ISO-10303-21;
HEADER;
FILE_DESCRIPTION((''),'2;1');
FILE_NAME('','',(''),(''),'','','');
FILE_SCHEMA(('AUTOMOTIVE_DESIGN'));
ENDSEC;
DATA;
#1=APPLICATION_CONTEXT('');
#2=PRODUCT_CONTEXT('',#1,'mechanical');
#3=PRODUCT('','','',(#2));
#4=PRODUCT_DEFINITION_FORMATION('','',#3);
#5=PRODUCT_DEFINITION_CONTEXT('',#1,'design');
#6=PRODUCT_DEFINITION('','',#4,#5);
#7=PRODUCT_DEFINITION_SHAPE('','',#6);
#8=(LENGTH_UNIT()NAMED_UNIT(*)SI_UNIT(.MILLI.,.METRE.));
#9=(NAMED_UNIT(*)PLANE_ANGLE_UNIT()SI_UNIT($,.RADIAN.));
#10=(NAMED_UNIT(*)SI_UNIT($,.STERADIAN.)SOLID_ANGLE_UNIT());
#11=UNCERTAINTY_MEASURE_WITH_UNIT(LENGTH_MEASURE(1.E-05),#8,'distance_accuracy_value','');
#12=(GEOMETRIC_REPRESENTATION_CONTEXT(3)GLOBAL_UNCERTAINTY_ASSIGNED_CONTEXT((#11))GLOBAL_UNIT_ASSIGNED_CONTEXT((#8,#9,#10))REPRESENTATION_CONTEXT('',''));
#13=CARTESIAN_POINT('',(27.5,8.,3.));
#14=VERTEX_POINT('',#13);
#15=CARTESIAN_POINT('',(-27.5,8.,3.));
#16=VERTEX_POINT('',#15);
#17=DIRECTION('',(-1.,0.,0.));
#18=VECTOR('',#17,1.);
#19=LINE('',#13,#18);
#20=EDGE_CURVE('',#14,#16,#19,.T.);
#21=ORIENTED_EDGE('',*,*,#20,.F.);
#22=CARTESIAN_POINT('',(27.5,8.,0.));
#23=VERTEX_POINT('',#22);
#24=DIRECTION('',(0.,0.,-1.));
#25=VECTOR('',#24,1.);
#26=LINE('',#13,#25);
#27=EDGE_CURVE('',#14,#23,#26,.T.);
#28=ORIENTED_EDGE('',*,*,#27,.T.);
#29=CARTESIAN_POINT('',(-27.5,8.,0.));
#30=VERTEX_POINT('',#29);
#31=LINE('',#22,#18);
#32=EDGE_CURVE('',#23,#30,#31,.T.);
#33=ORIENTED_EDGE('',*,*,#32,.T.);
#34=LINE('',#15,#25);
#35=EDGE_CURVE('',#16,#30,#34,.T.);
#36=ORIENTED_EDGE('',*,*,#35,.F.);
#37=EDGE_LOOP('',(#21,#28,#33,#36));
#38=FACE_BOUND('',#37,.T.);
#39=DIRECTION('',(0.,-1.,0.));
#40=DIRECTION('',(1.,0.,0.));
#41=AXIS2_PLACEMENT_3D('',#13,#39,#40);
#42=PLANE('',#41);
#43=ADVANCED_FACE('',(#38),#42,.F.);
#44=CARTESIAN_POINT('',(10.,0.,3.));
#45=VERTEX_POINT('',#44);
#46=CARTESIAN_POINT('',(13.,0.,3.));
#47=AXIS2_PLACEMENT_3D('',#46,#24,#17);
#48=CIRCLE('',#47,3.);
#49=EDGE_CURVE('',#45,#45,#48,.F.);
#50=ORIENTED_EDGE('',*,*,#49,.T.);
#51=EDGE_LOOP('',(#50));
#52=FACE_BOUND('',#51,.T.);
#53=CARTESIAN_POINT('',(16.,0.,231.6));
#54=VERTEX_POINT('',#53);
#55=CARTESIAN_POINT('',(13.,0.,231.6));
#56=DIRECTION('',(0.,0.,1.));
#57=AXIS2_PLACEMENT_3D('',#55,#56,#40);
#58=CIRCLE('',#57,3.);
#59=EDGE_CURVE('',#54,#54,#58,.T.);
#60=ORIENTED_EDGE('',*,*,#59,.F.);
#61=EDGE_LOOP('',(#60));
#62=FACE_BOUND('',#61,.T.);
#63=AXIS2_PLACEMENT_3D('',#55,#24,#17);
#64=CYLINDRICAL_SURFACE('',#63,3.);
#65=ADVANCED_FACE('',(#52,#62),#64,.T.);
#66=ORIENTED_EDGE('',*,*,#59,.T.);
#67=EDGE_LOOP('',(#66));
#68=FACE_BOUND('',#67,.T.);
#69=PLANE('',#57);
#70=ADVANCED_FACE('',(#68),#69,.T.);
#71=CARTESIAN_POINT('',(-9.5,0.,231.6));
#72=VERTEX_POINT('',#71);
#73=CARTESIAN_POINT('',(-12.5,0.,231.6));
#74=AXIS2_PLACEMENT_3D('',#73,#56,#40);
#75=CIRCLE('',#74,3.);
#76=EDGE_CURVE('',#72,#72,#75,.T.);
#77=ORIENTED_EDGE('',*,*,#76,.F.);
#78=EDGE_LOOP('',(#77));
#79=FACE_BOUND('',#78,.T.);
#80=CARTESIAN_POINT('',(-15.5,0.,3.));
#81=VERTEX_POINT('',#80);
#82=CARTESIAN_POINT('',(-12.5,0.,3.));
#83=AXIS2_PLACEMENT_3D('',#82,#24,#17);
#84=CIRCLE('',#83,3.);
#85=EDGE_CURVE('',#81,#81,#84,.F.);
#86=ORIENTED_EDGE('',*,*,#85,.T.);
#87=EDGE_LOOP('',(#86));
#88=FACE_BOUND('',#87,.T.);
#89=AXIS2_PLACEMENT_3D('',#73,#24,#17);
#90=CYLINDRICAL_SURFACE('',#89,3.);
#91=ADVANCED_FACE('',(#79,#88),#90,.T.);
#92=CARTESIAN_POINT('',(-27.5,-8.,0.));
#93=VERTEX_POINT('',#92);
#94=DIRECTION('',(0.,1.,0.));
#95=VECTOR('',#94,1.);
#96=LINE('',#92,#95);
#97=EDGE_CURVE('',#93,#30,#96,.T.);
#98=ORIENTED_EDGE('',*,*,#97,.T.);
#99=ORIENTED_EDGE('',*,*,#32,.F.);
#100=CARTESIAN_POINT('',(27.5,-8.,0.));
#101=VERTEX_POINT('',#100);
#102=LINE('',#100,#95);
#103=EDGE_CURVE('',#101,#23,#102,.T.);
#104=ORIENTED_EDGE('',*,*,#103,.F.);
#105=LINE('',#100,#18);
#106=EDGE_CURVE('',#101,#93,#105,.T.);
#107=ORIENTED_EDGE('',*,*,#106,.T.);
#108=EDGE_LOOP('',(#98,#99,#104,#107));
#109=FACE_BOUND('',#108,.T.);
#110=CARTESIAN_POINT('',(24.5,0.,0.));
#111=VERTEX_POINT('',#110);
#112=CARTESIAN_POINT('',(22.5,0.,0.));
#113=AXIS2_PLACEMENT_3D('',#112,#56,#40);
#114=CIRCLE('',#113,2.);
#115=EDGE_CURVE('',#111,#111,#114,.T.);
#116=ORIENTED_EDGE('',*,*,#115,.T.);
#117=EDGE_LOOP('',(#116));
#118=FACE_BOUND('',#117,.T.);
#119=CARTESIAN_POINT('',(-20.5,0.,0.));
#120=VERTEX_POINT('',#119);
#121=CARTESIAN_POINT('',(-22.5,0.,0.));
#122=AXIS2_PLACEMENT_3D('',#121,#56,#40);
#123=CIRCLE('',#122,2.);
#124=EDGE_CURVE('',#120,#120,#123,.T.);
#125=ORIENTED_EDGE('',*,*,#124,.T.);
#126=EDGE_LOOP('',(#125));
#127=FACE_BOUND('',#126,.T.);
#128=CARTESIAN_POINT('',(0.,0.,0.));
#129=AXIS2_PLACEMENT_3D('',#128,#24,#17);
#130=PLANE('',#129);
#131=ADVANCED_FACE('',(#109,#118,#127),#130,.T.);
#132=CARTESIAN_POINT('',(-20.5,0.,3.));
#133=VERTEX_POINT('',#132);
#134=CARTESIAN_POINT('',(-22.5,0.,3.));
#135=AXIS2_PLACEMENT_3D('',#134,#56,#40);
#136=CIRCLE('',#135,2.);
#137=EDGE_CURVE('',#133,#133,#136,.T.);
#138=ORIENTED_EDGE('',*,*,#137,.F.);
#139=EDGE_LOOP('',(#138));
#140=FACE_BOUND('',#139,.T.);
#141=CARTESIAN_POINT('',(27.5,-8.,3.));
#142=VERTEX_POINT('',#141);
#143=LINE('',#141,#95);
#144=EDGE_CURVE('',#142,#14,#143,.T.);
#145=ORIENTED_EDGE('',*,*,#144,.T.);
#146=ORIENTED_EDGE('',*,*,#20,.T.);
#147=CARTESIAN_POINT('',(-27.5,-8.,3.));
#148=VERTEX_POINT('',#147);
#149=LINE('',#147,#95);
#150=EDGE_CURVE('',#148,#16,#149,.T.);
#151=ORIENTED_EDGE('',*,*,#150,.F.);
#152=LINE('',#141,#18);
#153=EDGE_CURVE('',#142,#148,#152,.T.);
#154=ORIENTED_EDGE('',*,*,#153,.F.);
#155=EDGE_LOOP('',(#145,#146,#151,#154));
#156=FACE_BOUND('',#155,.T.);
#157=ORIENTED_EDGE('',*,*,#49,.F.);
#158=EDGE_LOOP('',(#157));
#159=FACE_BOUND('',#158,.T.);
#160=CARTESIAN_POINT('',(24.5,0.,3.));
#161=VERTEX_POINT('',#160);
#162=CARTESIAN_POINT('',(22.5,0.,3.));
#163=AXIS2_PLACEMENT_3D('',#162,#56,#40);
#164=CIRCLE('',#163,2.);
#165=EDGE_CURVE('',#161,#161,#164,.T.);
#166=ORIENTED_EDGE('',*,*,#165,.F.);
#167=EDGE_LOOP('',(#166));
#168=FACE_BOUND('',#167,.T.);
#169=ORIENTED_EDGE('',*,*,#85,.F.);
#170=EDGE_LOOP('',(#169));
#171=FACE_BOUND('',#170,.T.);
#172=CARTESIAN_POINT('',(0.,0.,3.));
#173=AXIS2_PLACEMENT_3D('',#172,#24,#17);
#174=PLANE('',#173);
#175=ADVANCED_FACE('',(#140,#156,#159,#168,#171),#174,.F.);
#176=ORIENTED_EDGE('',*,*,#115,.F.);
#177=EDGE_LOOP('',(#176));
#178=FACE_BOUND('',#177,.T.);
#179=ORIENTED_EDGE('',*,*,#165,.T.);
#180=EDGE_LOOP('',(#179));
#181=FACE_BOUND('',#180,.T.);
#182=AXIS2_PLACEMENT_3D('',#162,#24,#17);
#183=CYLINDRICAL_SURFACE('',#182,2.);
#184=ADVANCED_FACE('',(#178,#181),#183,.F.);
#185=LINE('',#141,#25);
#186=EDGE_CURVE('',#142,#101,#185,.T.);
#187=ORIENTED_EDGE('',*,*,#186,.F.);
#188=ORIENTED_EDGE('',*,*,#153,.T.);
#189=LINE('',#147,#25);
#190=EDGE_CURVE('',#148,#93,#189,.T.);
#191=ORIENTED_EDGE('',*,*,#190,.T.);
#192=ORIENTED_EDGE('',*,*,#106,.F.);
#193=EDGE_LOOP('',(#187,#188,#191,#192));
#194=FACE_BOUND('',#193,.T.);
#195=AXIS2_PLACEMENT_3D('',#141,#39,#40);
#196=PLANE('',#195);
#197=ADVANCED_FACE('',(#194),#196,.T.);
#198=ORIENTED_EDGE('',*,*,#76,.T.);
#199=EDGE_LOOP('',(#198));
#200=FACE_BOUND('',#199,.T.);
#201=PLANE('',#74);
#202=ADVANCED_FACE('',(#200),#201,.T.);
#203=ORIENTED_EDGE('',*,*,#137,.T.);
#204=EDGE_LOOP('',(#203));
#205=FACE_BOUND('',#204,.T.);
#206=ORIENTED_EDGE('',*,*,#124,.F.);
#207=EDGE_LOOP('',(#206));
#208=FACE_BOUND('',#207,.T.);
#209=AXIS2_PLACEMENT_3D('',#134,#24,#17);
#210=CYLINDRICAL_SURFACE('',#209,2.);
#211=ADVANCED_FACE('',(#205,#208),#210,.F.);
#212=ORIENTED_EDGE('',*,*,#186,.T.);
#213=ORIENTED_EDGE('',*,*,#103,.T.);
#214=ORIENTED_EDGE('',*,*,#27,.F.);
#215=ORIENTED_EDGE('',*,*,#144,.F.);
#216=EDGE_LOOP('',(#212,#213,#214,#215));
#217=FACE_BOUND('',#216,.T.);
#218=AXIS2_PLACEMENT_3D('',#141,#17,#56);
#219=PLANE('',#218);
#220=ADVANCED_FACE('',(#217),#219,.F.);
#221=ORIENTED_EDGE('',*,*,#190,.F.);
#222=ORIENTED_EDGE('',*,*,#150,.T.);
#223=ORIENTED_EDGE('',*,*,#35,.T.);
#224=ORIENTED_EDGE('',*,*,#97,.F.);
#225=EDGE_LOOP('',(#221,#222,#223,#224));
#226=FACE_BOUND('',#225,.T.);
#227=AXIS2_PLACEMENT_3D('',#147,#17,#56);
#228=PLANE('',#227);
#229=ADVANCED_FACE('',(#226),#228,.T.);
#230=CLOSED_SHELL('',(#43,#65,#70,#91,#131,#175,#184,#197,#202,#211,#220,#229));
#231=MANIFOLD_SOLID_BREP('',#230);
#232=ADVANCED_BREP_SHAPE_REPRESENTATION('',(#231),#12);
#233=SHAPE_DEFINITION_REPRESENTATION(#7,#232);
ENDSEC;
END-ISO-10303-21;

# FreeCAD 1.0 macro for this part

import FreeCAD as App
import Part
import Sketcher


def add_polygon(sketch, points):
    """Adds a closed chain of lines whose ends are joined by coincident constraints."""
    first, n = sketch.GeometryCount, len(points)
    for a, b in zip(points, points[1:] + points[:1]):
        sketch.addGeometry(Part.LineSegment(App.Vector(*a, 0), App.Vector(*b, 0)), False)
    for i in range(n):
        sketch.addConstraint(Sketcher.Constraint("Coincident", first + i, 2, first + (i + 1) % n, 1))

doc = App.newDocument("Part")
body = doc.addObject("PartDesign::Body", "Body")

# Sketch on XY plane
sketch1 = doc.addObject("Sketcher::SketchObject", "Sketch")
body.addObject(sketch1)
sketch1.AttachmentSupport = (doc.XY_Plane, [""])
sketch1.MapMode = "FlatFace"
add_polygon(sketch1, [(-27.5, 8), (-27.5, -8), (27.5, -8), (27.5, 8)])  # lines 0-3
sketch1.addGeometry(Part.Circle(App.Vector(-22.5, 0, 0), App.Vector(0, 0, 1), 2), False)  # 4
sketch1.addGeometry(Part.Circle(App.Vector(22.5, 0, 0), App.Vector(0, 0, 1), 2), False)  # 5
sketch1.addConstraint([
    Sketcher.Constraint("Vertical", 0),
    Sketcher.Constraint("Horizontal", 1),
    Sketcher.Constraint("Vertical", 2),
    Sketcher.Constraint("Horizontal", 3),
    Sketcher.Constraint("Equal", 4, 5),
    Sketcher.Constraint("Symmetric", 4, 3, 5, 3, -1, 1),
    Sketcher.Constraint("Symmetric", 0, 2, 2, 2, -1, 1),
    Sketcher.Constraint("PointOnObject", 4, 3, -1),
    Sketcher.Constraint("Diameter", 4, 4.0),
    Sketcher.Constraint("DistanceX", 1, 1, 1, 2, 55.0),
    Sketcher.Constraint("DistanceY", 0, 2, 0, 1, 16.0),
    Sketcher.Constraint("DistanceX", 4, 3, 5, 3, 45.0),
])
pad1 = doc.addObject("PartDesign::Pad", "Pad")
body.addObject(pad1)
pad1.Profile = sketch1
pad1.Length = 3

# Sketch on XY plane
sketch2 = doc.addObject("Sketcher::SketchObject", "Sketch001")
body.addObject(sketch2)
sketch2.AttachmentSupport = (doc.XY_Plane, [""])
sketch2.MapMode = "FlatFace"
sketch2.AttachmentOffset = App.Placement(App.Vector(0, 0, 3), App.Rotation())
sketch2.addGeometry([
    Part.Circle(App.Vector(-12.5, 0, 0), App.Vector(0, 0, 1), 3),
    Part.Circle(App.Vector(13, 0, 0), App.Vector(0, 0, 1), 3),
], False)
sketch2.addConstraint([
    Sketcher.Constraint("Equal", 0, 1),
    Sketcher.Constraint("PointOnObject", 0, 3, -1),
    Sketcher.Constraint("PointOnObject", 1, 3, -1),
    Sketcher.Constraint("Diameter", 0, 6.0),
    Sketcher.Constraint("DistanceX", -1, 1, 1, 3, 13.0),
    Sketcher.Constraint("DistanceX", 0, 3, -1, 1, 12.5),
])
pad2 = doc.addObject("PartDesign::Pad", "Pad001")
body.addObject(pad2)
pad2.Profile = sketch2
pad2.Length = 228.6

doc.recompute()
